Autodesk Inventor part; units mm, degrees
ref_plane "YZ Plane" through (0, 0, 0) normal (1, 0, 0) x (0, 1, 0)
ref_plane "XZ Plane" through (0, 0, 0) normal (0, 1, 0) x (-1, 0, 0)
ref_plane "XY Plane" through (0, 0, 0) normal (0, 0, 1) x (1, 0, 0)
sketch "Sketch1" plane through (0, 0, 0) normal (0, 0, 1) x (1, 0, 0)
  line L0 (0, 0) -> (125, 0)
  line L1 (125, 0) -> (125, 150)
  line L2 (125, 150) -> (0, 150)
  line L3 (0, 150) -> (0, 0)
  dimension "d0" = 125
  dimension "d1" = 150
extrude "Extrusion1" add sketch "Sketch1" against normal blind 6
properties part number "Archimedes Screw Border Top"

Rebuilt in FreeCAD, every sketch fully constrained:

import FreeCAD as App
import Part
import Sketcher

V = App.Vector
Q = App.Units.Quantity

doc = App.newDocument("Part")
body = doc.addObject("PartDesign::Body", "Body")

sketch1 = body.newObject("Sketcher::SketchObject", "Sketch")
sketch1.AttachmentSupport = (doc.getObject("XY_Plane"), [""])
sketch1.MapMode = "FlatFace"
sketch1.addGeometry([
    Part.LineSegment(V(0, 150, 0), V(0, 0, 0)),
    Part.LineSegment(V(0, 0, 0), V(125, 0, 0)),
    Part.LineSegment(V(125, 0, 0), V(125, 150, 0)),
    Part.LineSegment(V(125, 150, 0), V(0, 150, 0)),
], False)
sketch1.addConstraint([
    Sketcher.Constraint("Coincident", 0, 2, 1, 1),
    Sketcher.Constraint("Coincident", 1, 2, 2, 1),
    Sketcher.Constraint("Coincident", 2, 2, 3, 1),
    Sketcher.Constraint("Coincident", 3, 2, 0, 1),
    Sketcher.Constraint("Vertical", 0),
    Sketcher.Constraint("Horizontal", 1),
    Sketcher.Constraint("Vertical", 2),
    Sketcher.Constraint("Horizontal", 3),
    Sketcher.Constraint("Coincident", 0, 2, -1, 1),
    Sketcher.Constraint("DistanceX", 1, 1, 1, 2, Q("125 mm")),
    Sketcher.Constraint("DistanceY", 0, 2, 0, 1, Q("150 mm")),
])
pad1 = body.newObject("PartDesign::Pad", "Pad")
pad1.Profile = sketch1
pad1.Length = 6
pad1.Reversed = True

doc.recompute()
